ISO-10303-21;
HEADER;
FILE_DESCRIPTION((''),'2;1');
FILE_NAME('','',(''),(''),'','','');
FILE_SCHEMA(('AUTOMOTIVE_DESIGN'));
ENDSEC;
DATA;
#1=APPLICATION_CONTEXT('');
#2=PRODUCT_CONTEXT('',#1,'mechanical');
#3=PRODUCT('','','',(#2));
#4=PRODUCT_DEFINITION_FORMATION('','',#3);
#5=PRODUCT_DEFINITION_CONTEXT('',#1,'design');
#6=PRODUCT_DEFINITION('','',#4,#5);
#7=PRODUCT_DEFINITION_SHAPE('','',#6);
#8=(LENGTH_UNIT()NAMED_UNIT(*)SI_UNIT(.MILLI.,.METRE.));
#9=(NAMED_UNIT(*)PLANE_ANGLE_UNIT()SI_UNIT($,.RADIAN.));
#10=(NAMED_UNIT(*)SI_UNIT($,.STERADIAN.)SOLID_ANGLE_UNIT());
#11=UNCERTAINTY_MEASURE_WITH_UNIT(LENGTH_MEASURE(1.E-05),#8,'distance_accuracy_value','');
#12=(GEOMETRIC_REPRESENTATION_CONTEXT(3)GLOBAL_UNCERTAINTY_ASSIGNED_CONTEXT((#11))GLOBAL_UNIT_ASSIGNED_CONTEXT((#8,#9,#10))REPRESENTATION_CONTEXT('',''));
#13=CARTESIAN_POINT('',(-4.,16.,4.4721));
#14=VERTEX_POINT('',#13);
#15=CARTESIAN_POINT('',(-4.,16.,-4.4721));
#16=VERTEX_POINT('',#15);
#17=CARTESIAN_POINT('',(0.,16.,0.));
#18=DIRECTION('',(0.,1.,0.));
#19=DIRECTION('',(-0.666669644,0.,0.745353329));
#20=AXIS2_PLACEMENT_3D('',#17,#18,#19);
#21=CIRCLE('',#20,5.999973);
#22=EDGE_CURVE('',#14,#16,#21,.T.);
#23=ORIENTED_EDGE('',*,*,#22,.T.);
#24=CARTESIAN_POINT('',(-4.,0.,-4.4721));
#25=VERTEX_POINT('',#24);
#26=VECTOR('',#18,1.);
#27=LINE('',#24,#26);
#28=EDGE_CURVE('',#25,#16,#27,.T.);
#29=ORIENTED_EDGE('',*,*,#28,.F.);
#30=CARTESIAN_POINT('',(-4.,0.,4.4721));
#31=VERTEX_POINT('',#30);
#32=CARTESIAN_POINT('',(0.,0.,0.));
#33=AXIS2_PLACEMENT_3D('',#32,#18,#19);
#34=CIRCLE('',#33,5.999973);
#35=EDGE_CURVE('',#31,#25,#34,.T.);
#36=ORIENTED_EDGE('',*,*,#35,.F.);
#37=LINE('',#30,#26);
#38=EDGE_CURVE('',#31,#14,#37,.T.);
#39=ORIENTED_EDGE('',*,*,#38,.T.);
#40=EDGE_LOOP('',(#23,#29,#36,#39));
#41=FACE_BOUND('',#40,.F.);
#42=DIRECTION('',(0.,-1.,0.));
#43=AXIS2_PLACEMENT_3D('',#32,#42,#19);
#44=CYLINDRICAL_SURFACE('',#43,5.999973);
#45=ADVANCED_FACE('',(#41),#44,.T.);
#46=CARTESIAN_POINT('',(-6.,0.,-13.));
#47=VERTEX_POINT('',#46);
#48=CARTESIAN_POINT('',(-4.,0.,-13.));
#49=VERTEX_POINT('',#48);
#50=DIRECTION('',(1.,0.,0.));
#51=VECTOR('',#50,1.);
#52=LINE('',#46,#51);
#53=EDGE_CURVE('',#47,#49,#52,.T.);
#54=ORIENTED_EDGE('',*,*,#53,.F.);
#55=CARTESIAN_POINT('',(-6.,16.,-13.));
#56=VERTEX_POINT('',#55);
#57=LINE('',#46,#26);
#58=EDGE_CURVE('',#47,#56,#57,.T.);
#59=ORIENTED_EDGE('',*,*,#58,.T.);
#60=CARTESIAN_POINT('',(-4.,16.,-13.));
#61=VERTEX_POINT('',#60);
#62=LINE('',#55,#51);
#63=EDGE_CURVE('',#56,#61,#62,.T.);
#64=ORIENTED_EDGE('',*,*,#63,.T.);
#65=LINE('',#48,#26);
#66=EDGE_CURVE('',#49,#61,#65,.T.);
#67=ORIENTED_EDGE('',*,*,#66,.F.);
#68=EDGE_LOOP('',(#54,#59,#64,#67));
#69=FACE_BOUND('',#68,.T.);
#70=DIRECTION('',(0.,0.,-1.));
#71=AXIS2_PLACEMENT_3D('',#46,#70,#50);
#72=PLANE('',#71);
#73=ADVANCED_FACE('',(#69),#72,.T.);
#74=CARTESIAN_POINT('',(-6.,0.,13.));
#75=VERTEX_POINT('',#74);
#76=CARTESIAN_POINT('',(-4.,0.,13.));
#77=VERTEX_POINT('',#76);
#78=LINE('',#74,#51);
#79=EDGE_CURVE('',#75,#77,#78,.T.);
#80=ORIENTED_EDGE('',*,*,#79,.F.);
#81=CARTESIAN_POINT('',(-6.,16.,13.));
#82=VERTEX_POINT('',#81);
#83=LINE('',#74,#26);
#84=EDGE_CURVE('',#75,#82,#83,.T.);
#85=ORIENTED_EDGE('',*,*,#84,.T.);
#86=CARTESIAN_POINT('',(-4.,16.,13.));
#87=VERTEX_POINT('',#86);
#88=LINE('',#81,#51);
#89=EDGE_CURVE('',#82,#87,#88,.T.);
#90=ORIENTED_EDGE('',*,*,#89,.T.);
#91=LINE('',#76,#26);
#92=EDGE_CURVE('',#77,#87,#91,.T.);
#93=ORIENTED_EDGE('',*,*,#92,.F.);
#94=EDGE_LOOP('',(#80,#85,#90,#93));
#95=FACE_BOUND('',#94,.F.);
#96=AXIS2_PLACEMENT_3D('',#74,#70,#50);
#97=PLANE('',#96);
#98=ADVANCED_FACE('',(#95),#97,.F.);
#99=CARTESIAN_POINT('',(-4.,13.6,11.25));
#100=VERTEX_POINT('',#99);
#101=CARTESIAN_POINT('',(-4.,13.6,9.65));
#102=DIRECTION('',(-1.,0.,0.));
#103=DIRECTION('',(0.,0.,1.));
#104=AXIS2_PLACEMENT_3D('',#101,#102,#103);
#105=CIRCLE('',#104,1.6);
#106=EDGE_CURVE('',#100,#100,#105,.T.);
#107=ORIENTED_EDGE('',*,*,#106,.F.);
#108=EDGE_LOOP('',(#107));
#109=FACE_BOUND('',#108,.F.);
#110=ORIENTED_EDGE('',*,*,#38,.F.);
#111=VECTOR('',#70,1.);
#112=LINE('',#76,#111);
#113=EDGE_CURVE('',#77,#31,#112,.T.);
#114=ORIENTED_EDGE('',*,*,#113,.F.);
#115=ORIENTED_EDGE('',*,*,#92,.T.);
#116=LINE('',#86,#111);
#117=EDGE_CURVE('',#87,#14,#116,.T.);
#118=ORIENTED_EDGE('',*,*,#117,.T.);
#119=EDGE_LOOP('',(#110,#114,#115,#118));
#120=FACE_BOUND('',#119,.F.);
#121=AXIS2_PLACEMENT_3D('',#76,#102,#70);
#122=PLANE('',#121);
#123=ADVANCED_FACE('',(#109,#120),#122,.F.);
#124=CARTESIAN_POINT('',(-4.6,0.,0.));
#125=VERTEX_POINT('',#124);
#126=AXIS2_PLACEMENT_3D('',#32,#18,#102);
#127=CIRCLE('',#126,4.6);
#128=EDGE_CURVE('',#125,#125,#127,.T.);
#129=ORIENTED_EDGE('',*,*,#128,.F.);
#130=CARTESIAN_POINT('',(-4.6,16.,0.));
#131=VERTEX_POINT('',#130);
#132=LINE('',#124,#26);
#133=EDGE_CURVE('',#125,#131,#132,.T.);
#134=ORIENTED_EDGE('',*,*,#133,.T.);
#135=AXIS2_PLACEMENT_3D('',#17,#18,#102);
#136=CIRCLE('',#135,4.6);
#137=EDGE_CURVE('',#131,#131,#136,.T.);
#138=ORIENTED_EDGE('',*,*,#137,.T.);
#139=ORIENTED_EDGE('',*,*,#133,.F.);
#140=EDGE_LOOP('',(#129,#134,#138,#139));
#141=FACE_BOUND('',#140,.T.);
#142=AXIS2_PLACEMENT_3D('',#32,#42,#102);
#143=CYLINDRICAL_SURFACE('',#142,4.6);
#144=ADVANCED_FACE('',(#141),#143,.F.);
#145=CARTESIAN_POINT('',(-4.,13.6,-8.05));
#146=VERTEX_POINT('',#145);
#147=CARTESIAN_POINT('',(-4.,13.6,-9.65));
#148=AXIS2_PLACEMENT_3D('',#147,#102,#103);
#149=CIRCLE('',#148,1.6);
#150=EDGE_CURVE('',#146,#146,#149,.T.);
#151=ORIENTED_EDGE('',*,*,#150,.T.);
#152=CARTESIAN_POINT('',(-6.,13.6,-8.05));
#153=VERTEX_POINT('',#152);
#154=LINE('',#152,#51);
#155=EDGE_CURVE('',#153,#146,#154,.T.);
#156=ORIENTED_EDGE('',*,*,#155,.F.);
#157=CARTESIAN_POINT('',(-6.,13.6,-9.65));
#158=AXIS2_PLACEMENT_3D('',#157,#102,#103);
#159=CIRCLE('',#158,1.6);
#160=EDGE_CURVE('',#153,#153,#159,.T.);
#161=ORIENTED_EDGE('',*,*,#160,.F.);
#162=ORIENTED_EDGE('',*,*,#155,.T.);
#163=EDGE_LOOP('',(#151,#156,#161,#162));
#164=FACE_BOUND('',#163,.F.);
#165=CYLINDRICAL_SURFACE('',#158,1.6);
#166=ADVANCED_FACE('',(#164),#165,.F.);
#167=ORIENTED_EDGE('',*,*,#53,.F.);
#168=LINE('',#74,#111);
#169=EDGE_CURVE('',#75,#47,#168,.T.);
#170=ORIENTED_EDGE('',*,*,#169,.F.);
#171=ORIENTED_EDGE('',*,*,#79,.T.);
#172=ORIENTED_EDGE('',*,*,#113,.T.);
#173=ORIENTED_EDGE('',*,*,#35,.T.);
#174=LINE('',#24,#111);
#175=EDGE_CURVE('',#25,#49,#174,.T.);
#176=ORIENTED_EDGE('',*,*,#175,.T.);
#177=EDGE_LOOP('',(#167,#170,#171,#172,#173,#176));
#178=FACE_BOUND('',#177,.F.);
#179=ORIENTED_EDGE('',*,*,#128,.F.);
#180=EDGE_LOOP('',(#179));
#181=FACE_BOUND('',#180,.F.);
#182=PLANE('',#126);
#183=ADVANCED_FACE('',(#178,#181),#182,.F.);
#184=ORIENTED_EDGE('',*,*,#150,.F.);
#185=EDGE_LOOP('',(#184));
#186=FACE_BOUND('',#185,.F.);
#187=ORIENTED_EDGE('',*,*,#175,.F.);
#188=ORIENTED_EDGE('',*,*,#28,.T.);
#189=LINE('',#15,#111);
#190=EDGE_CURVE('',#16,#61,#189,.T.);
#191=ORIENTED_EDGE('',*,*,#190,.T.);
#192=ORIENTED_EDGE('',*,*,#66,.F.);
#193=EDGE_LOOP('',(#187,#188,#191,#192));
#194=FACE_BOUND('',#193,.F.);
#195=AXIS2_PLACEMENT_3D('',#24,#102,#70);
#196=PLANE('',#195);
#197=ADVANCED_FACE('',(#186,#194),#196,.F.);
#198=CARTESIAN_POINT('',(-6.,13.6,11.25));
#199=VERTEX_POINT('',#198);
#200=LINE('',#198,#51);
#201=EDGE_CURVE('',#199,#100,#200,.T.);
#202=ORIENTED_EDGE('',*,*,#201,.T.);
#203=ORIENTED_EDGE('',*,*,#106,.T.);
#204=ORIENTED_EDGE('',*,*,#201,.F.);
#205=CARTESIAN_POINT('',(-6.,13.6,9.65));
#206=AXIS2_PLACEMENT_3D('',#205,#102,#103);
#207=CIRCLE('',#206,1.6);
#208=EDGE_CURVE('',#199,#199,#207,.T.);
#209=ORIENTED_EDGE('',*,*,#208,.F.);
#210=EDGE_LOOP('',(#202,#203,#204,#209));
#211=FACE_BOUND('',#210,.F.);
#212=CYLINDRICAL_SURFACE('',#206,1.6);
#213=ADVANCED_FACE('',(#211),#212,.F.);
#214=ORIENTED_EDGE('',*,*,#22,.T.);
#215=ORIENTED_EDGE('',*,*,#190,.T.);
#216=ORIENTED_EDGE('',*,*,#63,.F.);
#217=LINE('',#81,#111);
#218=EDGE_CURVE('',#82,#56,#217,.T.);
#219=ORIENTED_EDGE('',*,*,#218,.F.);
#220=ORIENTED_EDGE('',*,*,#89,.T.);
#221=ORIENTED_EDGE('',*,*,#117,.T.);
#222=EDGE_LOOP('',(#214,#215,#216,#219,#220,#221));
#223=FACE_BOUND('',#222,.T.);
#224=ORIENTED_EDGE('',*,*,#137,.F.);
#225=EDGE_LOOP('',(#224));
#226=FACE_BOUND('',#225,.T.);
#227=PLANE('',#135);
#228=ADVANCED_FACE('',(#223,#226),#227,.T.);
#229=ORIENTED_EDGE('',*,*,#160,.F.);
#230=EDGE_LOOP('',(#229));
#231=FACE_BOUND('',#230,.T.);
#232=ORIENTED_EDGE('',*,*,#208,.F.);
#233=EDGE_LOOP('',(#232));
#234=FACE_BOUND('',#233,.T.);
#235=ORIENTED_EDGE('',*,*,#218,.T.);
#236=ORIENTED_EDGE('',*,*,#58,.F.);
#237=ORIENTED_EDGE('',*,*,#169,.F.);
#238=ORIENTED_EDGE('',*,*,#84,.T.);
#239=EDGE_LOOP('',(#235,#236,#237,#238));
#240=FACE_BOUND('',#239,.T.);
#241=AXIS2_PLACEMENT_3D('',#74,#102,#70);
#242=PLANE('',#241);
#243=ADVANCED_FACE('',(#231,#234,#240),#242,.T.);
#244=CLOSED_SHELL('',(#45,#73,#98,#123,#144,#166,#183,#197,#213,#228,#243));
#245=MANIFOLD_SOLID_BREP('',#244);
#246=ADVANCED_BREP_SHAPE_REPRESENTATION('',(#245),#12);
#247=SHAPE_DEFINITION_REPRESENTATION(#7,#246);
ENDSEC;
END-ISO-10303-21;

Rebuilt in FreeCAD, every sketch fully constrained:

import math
import FreeCAD as App
import Part
import Sketcher

V = App.Vector
Q = App.Units.Quantity

doc = App.newDocument("Part")
body = doc.addObject("PartDesign::Body", "Body")

# Sketch on XZ plane
sketch1 = body.newObject("Sketcher::SketchObject", "Sketch")
sketch1.AttachmentSupport = (doc.getObject("XZ_Plane"), [""])
sketch1.MapMode = "FlatFace"
sketch1.addGeometry(Part.LineSegment(V(-6, -13, 0), V(-6, 13, 0)), False)
sketch1.addGeometry(Part.LineSegment(V(-6, 13, 0), V(-4, 13, 0)), False)
sketch1.addGeometry(Part.LineSegment(V(-4, 13, 0), V(-4, 4.5, 0)), False)
sketch1.addGeometry(Part.ArcOfCircle(Part.Circle(V(0, 0, 0), V(0, 0, 1), 6), math.radians(-132), math.radians(132)), False)
sketch1.addGeometry(Part.LineSegment(V(-4, -4.5, 0), V(-4, -13, 0)), False)
sketch1.addGeometry(Part.LineSegment(V(-4, -13, 0), V(-6, -13, 0)), False)
sketch1.addGeometry(Part.Circle(V(0, 0, 0), V(0, 0, 1), 4.6), False)
sketch1.addConstraint(Sketcher.Constraint("Coincident", 0, 2, 1, 1))
sketch1.addConstraint(Sketcher.Constraint("Coincident", 1, 2, 2, 1))
sketch1.addConstraint(Sketcher.Constraint("Coincident", 2, 2, 3, 2))
sketch1.addConstraint(Sketcher.Constraint("Coincident", 3, 1, 4, 1))
sketch1.addConstraint(Sketcher.Constraint("Coincident", 4, 2, 5, 1))
sketch1.addConstraint(Sketcher.Constraint("Coincident", 5, 2, 0, 1))
sketch1.addConstraint(Sketcher.Constraint("Vertical", 0))
sketch1.addConstraint(Sketcher.Constraint("Horizontal", 1))
sketch1.addConstraint(Sketcher.Constraint("Vertical", 2))
sketch1.addConstraint(Sketcher.Constraint("Vertical", 4))
sketch1.addConstraint(Sketcher.Constraint("Horizontal", 5))
sketch1.addConstraint(Sketcher.Constraint("Coincident", 3, 3, -1, 1))
sketch1.addConstraint(Sketcher.Constraint("Coincident", 6, 3, -1, 1))
sketch1.addConstraint(Sketcher.Constraint("Symmetric", 1, 2, 4, 2, -1))
sketch1.addConstraint(Sketcher.Constraint("Diameter", 6, Q("9.2 mm")))
sketch1.addConstraint(Sketcher.Constraint("DistanceX", 1, 1, 1, 2, Q("2 mm")))
sketch1.addConstraint(Sketcher.Constraint("DistanceY", 0, 1, 0, 2, Q("26 mm")))
sketch1.addConstraint(Sketcher.Constraint("Radius", 3, Q("6 mm")))
sketch1.addConstraint(Sketcher.Constraint("DistanceX", 0, 2, -1, 1, Q("6 mm")))
pad1 = body.newObject("PartDesign::Pad", "Pad")
pad1.Profile = sketch1
pad1.Length = 16
pad1.Reversed = True

# Sketch on YZ plane
sketch2 = body.newObject("Sketcher::SketchObject", "Sketch001")
sketch2.AttachmentSupport = (doc.getObject("YZ_Plane"), [""])
sketch2.MapMode = "FlatFace"
sketch2.AttachmentOffset = App.Placement(V(0, 0, -6), App.Rotation())
sketch2.addGeometry(Part.Circle(V(13.6, -9.7, 0), V(0, 0, 1), 1.6), False)
sketch2.addGeometry(Part.Circle(V(13.6, 9.7, 0), V(0, 0, 1), 1.6), False)
sketch2.addConstraint(Sketcher.Constraint("Equal", 0, 1))
sketch2.addConstraint(Sketcher.Constraint("Symmetric", 0, 3, 1, 3, -1))
sketch2.addConstraint(Sketcher.Constraint("Diameter", 0, Q("3.2 mm")))
sketch2.addConstraint(Sketcher.Constraint("DistanceX", -1, 1, 0, 3, Q("13.6 mm")))
sketch2.addConstraint(Sketcher.Constraint("DistanceY", 0, 3, 1, 3, Q("19.3 mm")))
pocket1 = body.newObject("PartDesign::Pocket", "Pocket")
pocket1.Profile = sketch2
pocket1.Length = 16
pocket1.Reversed = True

doc.recompute()
